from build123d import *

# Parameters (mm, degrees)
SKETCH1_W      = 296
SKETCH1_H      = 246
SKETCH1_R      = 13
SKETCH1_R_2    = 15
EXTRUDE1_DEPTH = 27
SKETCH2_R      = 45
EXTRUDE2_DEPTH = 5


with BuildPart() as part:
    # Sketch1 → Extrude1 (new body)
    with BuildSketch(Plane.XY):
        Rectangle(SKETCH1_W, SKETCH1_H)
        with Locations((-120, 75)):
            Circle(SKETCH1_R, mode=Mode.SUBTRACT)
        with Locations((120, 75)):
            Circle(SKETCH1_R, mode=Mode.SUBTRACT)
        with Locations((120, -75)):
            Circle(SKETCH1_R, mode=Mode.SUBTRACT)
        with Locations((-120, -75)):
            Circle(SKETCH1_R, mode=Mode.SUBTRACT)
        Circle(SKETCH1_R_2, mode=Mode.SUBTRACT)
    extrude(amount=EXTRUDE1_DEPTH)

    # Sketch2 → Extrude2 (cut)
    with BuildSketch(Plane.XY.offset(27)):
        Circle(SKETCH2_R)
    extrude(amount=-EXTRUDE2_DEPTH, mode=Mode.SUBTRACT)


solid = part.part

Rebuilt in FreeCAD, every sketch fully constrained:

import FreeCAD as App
import Part
import Sketcher

V = App.Vector

doc = App.newDocument("Part")
body = doc.addObject("PartDesign::Body", "Body")

sketch1 = body.newObject("Sketcher::SketchObject", "Sketch")
sketch1.AttachmentSupport = (doc.getObject("XY_Plane"), [""])
sketch1.MapMode = "FlatFace"
sketch1.addGeometry(Part.LineSegment(V(-148, 123, 0), V(-148, -123, 0)), False)
sketch1.addGeometry(Part.LineSegment(V(-148, -123, 0), V(148, -123, 0)), False)
sketch1.addGeometry(Part.LineSegment(V(148, -123, 0), V(148, 123, 0)), False)
sketch1.addGeometry(Part.LineSegment(V(148, 123, 0), V(-148, 123, 0)), False)
sketch1.addGeometry(Part.Circle(V(-120, -75, 0), V(0, 0, 1), 13), False)
sketch1.addGeometry(Part.Circle(V(120, -75, 0), V(0, 0, 1), 13), False)
sketch1.addGeometry(Part.Circle(V(-120, 75, 0), V(0, 0, 1), 13), False)
sketch1.addGeometry(Part.Circle(V(0, 0, 0), V(0, 0, 1), 15), False)
sketch1.addGeometry(Part.Circle(V(120, 75, 0), V(0, 0, 1), 13), False)
sketch1.addConstraint(Sketcher.Constraint("Coincident", 0, 2, 1, 1))
sketch1.addConstraint(Sketcher.Constraint("Coincident", 1, 2, 2, 1))
sketch1.addConstraint(Sketcher.Constraint("Coincident", 2, 2, 3, 1))
sketch1.addConstraint(Sketcher.Constraint("Coincident", 3, 2, 0, 1))
sketch1.addConstraint(Sketcher.Constraint("Vertical", 0))
sketch1.addConstraint(Sketcher.Constraint("Horizontal", 1))
sketch1.addConstraint(Sketcher.Constraint("Vertical", 2))
sketch1.addConstraint(Sketcher.Constraint("Horizontal", 3))
sketch1.addConstraint(Sketcher.Constraint("Coincident", 7, 3, -1, 1))
sketch1.addConstraint(Sketcher.Constraint("Equal", 4, 5))
sketch1.addConstraint(Sketcher.Constraint("Equal", 5, 6))
sketch1.addConstraint(Sketcher.Constraint("Equal", 6, 8))
sketch1.addConstraint(Sketcher.Constraint("Symmetric", 5, 3, 6, 3, -1, 1))
sketch1.addConstraint(Sketcher.Constraint("Symmetric", 4, 3, 8, 3, -1, 1))
sketch1.addConstraint(Sketcher.Constraint("Symmetric", 0, 2, 2, 2, -1, 1))
sketch1.addConstraint(Sketcher.Constraint("Symmetric", 4, 3, 5, 3, -2))
sketch1.addConstraint(Sketcher.Constraint("Diameter", 4, 26.0))
sketch1.addConstraint(Sketcher.Constraint("Diameter", 7, 30.0))
sketch1.addConstraint(Sketcher.Constraint("DistanceX", 1, 1, 1, 2, 296.0))
sketch1.addConstraint(Sketcher.Constraint("DistanceY", 0, 2, 0, 1, 246.0))
sketch1.addConstraint(Sketcher.Constraint("DistanceX", 4, 3, -1, 1, 120.0))
sketch1.addConstraint(Sketcher.Constraint("DistanceY", 4, 3, -1, 1, 75.0))
pad1 = body.newObject("PartDesign::Pad", "Pad")
pad1.Profile = sketch1
pad1.Length = 27

sketch2 = body.newObject("Sketcher::SketchObject", "Sketch001")
sketch2.AttachmentSupport = (doc.getObject("XY_Plane"), [""])
sketch2.MapMode = "FlatFace"
sketch2.AttachmentOffset = App.Placement(V(0, 0, 27), App.Rotation())
sketch2.addGeometry(Part.Circle(V(0, 0, 0), V(0, 0, 1), 45), False)
sketch2.addConstraint(Sketcher.Constraint("Coincident", 0, 3, -1, 1))
sketch2.addConstraint(Sketcher.Constraint("Diameter", 0, 90.0))
pocket1 = body.newObject("PartDesign::Pocket", "Pocket")
pocket1.Profile = sketch2
pocket1.Length = 5

doc.recompute()
